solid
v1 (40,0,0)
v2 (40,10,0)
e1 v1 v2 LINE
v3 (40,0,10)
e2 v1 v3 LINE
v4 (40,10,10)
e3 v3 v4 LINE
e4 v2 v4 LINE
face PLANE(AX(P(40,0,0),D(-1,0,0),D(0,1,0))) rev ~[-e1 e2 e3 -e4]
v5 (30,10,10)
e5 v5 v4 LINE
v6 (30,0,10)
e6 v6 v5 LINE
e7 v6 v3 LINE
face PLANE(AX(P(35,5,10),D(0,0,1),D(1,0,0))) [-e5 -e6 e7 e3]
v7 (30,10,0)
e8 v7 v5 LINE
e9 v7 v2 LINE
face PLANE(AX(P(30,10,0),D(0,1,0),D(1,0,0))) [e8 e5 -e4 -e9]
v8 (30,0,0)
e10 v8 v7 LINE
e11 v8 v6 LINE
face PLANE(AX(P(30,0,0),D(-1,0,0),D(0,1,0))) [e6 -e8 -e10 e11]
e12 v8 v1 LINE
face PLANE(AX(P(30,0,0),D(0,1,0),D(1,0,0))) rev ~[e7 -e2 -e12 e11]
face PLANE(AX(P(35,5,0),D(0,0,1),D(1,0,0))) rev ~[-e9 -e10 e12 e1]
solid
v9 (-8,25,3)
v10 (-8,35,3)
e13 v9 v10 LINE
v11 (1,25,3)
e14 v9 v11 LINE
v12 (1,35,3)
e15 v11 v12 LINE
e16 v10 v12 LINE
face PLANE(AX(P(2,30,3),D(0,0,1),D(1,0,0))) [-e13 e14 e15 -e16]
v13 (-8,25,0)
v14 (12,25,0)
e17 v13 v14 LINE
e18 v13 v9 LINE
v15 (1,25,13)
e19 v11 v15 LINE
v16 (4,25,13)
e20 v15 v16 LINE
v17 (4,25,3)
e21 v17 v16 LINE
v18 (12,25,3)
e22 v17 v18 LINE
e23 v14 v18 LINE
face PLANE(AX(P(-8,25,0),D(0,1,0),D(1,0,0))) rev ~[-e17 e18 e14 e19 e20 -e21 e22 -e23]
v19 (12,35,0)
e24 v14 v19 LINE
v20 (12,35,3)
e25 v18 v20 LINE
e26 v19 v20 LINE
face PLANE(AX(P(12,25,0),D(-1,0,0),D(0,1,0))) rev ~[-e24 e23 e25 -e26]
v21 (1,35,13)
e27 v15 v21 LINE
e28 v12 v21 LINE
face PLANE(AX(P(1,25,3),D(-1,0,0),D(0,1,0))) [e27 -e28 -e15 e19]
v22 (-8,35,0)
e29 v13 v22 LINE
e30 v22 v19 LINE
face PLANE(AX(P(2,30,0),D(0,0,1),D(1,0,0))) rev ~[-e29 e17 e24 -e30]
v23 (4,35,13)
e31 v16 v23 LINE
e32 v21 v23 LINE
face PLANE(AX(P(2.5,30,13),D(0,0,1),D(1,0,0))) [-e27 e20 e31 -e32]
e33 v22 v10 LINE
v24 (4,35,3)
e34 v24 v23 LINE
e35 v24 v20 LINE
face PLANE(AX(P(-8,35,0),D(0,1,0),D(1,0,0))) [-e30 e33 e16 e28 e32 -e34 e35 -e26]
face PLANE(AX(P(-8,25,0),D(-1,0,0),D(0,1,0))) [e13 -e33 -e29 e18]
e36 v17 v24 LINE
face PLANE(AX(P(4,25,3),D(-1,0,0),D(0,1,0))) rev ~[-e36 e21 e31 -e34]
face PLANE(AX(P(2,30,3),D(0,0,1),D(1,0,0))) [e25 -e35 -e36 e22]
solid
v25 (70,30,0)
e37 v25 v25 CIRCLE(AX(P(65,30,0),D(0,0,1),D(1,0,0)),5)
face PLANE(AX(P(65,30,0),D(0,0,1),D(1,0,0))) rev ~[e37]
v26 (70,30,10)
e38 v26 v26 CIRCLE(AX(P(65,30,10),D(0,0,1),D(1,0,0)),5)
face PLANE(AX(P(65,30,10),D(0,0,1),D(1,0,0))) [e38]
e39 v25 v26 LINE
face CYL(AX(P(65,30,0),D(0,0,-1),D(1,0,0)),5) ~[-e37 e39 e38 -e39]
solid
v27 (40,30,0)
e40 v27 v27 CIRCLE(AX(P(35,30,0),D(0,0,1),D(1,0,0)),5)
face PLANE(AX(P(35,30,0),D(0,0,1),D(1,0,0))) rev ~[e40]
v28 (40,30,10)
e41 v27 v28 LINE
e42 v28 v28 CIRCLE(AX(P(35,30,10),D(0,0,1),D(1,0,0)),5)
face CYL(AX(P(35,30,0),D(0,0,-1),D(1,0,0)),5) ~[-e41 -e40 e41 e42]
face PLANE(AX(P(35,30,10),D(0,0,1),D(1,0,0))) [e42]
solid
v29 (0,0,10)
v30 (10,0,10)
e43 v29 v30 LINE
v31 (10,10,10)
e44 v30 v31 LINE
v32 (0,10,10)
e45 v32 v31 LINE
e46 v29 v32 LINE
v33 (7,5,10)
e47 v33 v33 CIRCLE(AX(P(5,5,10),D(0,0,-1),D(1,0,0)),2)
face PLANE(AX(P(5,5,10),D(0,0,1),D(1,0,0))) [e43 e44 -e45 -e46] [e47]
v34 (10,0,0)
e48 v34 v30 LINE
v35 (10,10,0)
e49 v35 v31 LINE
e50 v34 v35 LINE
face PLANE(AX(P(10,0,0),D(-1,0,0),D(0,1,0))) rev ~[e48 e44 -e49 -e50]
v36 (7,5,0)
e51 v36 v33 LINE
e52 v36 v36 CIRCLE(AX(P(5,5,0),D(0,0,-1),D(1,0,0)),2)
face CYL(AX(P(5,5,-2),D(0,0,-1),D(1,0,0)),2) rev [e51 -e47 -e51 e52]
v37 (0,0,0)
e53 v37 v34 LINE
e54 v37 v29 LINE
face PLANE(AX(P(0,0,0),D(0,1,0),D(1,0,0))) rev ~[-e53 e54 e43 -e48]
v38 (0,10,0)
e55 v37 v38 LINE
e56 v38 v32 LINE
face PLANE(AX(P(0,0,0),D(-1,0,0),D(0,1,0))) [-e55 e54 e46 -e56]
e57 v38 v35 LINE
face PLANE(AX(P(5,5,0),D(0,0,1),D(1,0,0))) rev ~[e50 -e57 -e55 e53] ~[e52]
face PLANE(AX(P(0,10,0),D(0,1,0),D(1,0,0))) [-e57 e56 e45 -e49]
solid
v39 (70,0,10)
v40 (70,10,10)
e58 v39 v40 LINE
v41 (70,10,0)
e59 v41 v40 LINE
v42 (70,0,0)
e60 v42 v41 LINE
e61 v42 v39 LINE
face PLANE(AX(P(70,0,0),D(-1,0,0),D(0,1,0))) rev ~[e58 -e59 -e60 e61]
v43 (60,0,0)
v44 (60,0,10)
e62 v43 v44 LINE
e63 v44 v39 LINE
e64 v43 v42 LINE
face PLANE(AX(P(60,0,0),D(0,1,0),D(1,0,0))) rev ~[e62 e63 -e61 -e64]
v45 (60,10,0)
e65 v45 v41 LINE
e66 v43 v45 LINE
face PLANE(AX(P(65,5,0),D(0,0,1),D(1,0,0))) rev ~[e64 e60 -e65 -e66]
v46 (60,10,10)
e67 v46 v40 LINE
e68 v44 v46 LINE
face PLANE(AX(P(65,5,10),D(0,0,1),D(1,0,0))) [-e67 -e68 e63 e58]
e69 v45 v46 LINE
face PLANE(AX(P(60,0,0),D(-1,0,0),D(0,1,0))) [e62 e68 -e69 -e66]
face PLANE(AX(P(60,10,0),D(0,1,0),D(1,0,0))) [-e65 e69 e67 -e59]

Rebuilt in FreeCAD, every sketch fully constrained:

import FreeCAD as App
import Part
import Sketcher
from FreeCAD import Vector


def add_polygon(sketch, points):
    """Adds a closed chain of lines whose ends are joined by coincident constraints."""
    first, n = sketch.GeometryCount, len(points)
    for a, b in zip(points, points[1:] + points[:1]):
        sketch.addGeometry(Part.LineSegment(App.Vector(*a, 0), App.Vector(*b, 0)), False)
    for i in range(n):
        sketch.addConstraint(Sketcher.Constraint("Coincident", first + i, 2, first + (i + 1) % n, 1))

doc = App.newDocument("Part")
body = doc.addObject("PartDesign::Body", "Body")

sketch1 = body.newObject("Sketcher::SketchObject", "Sketch")
sketch1.AttachmentSupport = (doc.getObject("XY_Plane"), [""])
sketch1.MapMode = "FlatFace"
add_polygon(sketch1, [(60, 10), (60, 0), (70, 0), (70, 10)])
sketch1.addConstraint([
    Sketcher.Constraint("Vertical", 0),
    Sketcher.Constraint("Horizontal", 1),
    Sketcher.Constraint("Vertical", 2),
    Sketcher.Constraint("Horizontal", 3),
    Sketcher.Constraint("PointOnObject", 0, 2, -1),
    Sketcher.Constraint("Equal", 3, 0),
    Sketcher.Constraint("DistanceX", 1, 1, 1, 2, 10.0),
    Sketcher.Constraint("DistanceX", -1, 1, 0, 2, 60.0),
])
pad1 = body.newObject("PartDesign::Pad", "Pad")
pad1.Profile = sketch1
pad1.Length = 10
body2 = doc.addObject("PartDesign::Body", "Body001")

sketch2 = body2.newObject("Sketcher::SketchObject", "Sketch001")
sketch2.AttachmentSupport = (doc.getObject("XY_Plane001"), [""])
sketch2.MapMode = "FlatFace"
add_polygon(sketch2, [(30, 10), (30, 0), (40, 0), (40, 10)])
sketch2.addConstraint([
    Sketcher.Constraint("Vertical", 0),
    Sketcher.Constraint("Horizontal", 1),
    Sketcher.Constraint("Vertical", 2),
    Sketcher.Constraint("Horizontal", 3),
    Sketcher.Constraint("PointOnObject", 0, 2, -1),
    Sketcher.Constraint("Equal", 3, 0),
    Sketcher.Constraint("DistanceX", 1, 1, 1, 2, 10.0),
    Sketcher.Constraint("DistanceX", -1, 1, 0, 2, 30.0),
])
pad2 = body2.newObject("PartDesign::Pad", "Pad001")
pad2.Profile = sketch2
pad2.Length = 10
body3 = doc.addObject("PartDesign::Body", "Body002")

sketch3 = body3.newObject("Sketcher::SketchObject", "Sketch002")
sketch3.AttachmentSupport = (doc.getObject("XY_Plane002"), [""])
sketch3.MapMode = "FlatFace"
sketch3.AttachmentOffset = App.Placement(Vector(0, 0, -2), App.Rotation())
sketch3.addGeometry(Part.Circle(Vector(5, 5, 0), Vector(0, 0, 1), 2), False)
sketch3.addConstraint([
    Sketcher.Constraint("Diameter", 0, 4.0),
    Sketcher.Constraint("DistanceX", -1, 1, 0, 3, 5.0),
    Sketcher.Constraint("DistanceY", -1, 1, 0, 3, 5.0),
])
pad3 = body3.newObject("PartDesign::Pad", "Pad002")
pad3.Profile = sketch3
pad3.Length = 20
body4 = doc.addObject("PartDesign::Body", "Body003")

sketch4 = body4.newObject("Sketcher::SketchObject", "Sketch003")
sketch4.AttachmentSupport = (doc.getObject("XY_Plane003"), [""])
sketch4.MapMode = "FlatFace"
add_polygon(sketch4, [(0, 10), (0, 0), (10, 0), (10, 10)])
sketch4.addConstraint([
    Sketcher.Constraint("Vertical", 0),
    Sketcher.Constraint("Horizontal", 1),
    Sketcher.Constraint("Vertical", 2),
    Sketcher.Constraint("Horizontal", 3),
    Sketcher.Constraint("Coincident", 0, 2, -1, 1),
    Sketcher.Constraint("Equal", 3, 0),
    Sketcher.Constraint("DistanceX", 1, 1, 1, 2, 10.0),
])
pad4 = body4.newObject("PartDesign::Pad", "Pad003")
pad4.Profile = sketch4
pad4.Length = 10
doc.recompute()

boolean = body4.newObject("PartDesign::Boolean", "Boolean")
boolean.Type = "Cut"
boolean.addObjects([body3])
body5 = doc.addObject("PartDesign::Body", "Body004")

sketch5 = body5.newObject("Sketcher::SketchObject", "Sketch004")
sketch5.AttachmentSupport = (doc.getObject("XY_Plane004"), [""])
sketch5.MapMode = "FlatFace"
sketch5.addGeometry(Part.Circle(Vector(65, 30, 0), Vector(0, 0, 1), 5), False)
sketch5.addConstraint([
    Sketcher.Constraint("Diameter", 0, 10.0),
    Sketcher.Constraint("DistanceX", -1, 1, 0, 3, 65.0),
    Sketcher.Constraint("DistanceY", -1, 1, 0, 3, 30.0),
])
pad5 = body5.newObject("PartDesign::Pad", "Pad004")
pad5.Profile = sketch5
pad5.Length = 10
body6 = doc.addObject("PartDesign::Body", "Body005")

sketch6 = body6.newObject("Sketcher::SketchObject", "Sketch005")
sketch6.AttachmentSupport = (doc.getObject("XY_Plane005"), [""])
sketch6.MapMode = "FlatFace"
sketch6.addGeometry(Part.Circle(Vector(35, 30, 0), Vector(0, 0, 1), 5), False)
sketch6.addConstraint([
    Sketcher.Constraint("Diameter", 0, 10.0),
    Sketcher.Constraint("DistanceX", -1, 1, 0, 3, 35.0),
    Sketcher.Constraint("DistanceY", -1, 1, 0, 3, 30.0),
])
pad6 = body6.newObject("PartDesign::Pad", "Pad005")
pad6.Profile = sketch6
pad6.Length = 10
body7 = doc.addObject("PartDesign::Body", "Body006")

sketch7 = body7.newObject("Sketcher::SketchObject", "Sketch006")
sketch7.AttachmentSupport = (doc.getObject("XY_Plane006"), [""])
sketch7.MapMode = "FlatFace"
sketch7.AttachmentOffset = App.Placement(Vector(0, 0, 3), App.Rotation())
add_polygon(sketch7, [(1, 35), (1, 25), (4, 25), (4, 35)])
sketch7.addConstraint([
    Sketcher.Constraint("Vertical", 0),
    Sketcher.Constraint("Horizontal", 1),
    Sketcher.Constraint("Vertical", 2),
    Sketcher.Constraint("Horizontal", 3),
    Sketcher.Constraint("DistanceX", 1, 1, 1, 2, 3.0),
    Sketcher.Constraint("DistanceY", 0, 2, 0, 1, 10.0),
    Sketcher.Constraint("DistanceX", -1, 1, 0, 2, 1.0),
    Sketcher.Constraint("DistanceY", -1, 1, 0, 2, 25.0),
])
pad7 = body7.newObject("PartDesign::Pad", "Pad006")
pad7.Profile = sketch7
pad7.Length = 10
body8 = doc.addObject("PartDesign::Body", "Body007")

sketch8 = body8.newObject("Sketcher::SketchObject", "Sketch007")
sketch8.AttachmentSupport = (doc.getObject("XY_Plane007"), [""])
sketch8.MapMode = "FlatFace"
add_polygon(sketch8, [(-8, 35), (-8, 25), (12, 25), (12, 35)])
sketch8.addConstraint([
    Sketcher.Constraint("Vertical", 0),
    Sketcher.Constraint("Horizontal", 1),
    Sketcher.Constraint("Vertical", 2),
    Sketcher.Constraint("Horizontal", 3),
    Sketcher.Constraint("DistanceX", 1, 1, 1, 2, 20.0),
    Sketcher.Constraint("DistanceY", 0, 2, 0, 1, 10.0),
    Sketcher.Constraint("DistanceX", 0, 2, -1, 1, 8.0),
    Sketcher.Constraint("DistanceY", -1, 1, 0, 2, 25.0),
])
pad8 = body8.newObject("PartDesign::Pad", "Pad007")
pad8.Profile = sketch8
pad8.Length = 3
doc.recompute()

boolean2 = body8.newObject("PartDesign::Boolean", "Boolean001")
boolean2.Type = "Fuse"
boolean2.addObjects([body7])

doc.recompute()
